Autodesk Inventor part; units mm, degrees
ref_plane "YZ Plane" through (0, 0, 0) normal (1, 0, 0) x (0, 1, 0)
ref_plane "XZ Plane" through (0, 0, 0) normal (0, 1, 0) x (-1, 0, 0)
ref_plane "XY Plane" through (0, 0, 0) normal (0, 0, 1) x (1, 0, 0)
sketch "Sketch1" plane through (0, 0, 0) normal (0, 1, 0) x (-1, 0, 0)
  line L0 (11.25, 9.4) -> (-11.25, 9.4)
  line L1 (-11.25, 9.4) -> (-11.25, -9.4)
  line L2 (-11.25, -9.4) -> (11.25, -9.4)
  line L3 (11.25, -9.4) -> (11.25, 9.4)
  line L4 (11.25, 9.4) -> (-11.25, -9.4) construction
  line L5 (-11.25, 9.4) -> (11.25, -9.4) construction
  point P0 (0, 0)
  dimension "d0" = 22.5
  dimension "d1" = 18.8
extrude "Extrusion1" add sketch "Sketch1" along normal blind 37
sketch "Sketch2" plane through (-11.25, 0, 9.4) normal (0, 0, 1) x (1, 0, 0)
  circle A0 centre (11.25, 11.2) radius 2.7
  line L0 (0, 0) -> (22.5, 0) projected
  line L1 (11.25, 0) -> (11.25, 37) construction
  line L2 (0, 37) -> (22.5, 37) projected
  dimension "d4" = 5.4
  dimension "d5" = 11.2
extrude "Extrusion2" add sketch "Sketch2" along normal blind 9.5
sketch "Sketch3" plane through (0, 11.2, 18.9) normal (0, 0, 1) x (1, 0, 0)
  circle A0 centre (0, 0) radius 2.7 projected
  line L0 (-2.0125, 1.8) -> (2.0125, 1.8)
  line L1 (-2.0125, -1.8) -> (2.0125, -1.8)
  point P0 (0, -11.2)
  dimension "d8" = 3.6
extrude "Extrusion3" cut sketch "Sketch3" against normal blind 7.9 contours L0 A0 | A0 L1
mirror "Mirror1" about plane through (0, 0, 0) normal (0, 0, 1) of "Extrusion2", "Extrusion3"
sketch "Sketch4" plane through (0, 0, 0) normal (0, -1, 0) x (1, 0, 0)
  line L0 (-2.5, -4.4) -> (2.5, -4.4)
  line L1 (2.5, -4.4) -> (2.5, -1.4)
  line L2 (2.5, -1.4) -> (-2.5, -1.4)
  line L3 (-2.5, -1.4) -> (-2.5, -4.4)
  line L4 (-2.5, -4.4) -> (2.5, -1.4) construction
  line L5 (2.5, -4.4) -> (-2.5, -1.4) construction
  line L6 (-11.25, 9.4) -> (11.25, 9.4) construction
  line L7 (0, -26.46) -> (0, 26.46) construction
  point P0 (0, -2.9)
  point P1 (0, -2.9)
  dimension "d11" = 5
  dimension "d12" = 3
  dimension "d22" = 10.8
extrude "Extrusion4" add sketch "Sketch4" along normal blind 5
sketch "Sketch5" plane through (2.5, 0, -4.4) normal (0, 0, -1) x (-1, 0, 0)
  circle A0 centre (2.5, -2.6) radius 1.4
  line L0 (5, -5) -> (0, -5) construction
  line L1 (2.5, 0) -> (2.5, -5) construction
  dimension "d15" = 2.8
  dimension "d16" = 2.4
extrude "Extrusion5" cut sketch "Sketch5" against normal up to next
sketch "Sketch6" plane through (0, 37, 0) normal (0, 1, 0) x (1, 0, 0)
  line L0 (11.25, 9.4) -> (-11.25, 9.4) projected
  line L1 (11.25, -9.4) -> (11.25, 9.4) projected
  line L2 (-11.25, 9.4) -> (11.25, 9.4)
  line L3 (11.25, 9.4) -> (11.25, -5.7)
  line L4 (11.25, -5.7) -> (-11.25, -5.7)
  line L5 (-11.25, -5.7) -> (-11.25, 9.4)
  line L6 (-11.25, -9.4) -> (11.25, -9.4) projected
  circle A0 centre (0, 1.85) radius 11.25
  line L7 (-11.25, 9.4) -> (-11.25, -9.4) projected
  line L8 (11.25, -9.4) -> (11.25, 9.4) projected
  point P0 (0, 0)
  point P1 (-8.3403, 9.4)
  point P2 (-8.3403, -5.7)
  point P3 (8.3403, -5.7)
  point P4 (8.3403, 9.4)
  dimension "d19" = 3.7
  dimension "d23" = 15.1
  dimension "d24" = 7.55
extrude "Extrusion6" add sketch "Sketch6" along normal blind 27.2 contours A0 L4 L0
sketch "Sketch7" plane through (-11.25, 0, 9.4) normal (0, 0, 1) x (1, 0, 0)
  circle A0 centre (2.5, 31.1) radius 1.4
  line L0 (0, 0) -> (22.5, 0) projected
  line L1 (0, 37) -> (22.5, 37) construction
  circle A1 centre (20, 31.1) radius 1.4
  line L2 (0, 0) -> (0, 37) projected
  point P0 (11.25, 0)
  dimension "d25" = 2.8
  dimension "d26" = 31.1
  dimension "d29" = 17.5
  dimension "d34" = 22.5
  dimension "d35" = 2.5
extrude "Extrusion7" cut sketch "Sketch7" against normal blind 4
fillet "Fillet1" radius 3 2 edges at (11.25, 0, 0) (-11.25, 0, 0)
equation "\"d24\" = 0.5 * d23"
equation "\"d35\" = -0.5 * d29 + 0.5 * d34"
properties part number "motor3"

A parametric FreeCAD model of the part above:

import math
import FreeCAD as App
import Part
import Sketcher

V = App.Vector


def edges_at(feature, points):
    """Names of the edges that pass closest to the given points."""
    edges = feature.Shape.Edges
    near = lambda p: min(range(len(edges)), key=lambda i: edges[i].distToShape(Part.Vertex(*p))[0])
    return sorted({f"Edge{near(p) + 1}" for p in points})

doc = App.newDocument("Part")
body = doc.addObject("PartDesign::Body", "Body")

# Sketch on XZ plane
sketch1 = doc.addObject("Sketcher::SketchObject", "Sketch")
body.addObject(sketch1)
sketch1.AttachmentSupport = (doc.XZ_Plane, [""])
sketch1.MapMode = "FlatFace"
sketch1.addGeometry([
    Part.LineSegment(V(-11, -9, 0), V(-11, 9, 0)),
    Part.LineSegment(V(-11, 9, 0), V(11, 9, 0)),
    Part.LineSegment(V(11, 9, 0), V(11, -9, 0)),
    Part.LineSegment(V(11, -9, 0), V(-11, -9, 0)),
], False)
sketch1.addConstraint([
    Sketcher.Constraint("Coincident", 0, 2, 1, 1),
    Sketcher.Constraint("Coincident", 1, 2, 2, 1),
    Sketcher.Constraint("Coincident", 2, 2, 3, 1),
    Sketcher.Constraint("Coincident", 3, 2, 0, 1),
    Sketcher.Constraint("Vertical", 0),
    Sketcher.Constraint("Horizontal", 1),
    Sketcher.Constraint("Vertical", 2),
    Sketcher.Constraint("Horizontal", 3),
    Sketcher.Constraint("Symmetric", 0, 2, 2, 2, -1, 1),
    Sketcher.Constraint("DistanceX", 1, 1, 1, 2, 22.5),
    Sketcher.Constraint("DistanceY", 0, 1, 0, 2, 18.8),
])
pad1 = doc.addObject("PartDesign::Pad", "Pad")
body.addObject(pad1)
pad1.Profile = sketch1
pad1.Length = 37
pad1.Reversed = True

# Sketch on XY plane
sketch2 = doc.addObject("Sketcher::SketchObject", "Sketch001")
body.addObject(sketch2)
sketch2.AttachmentSupport = (doc.XY_Plane, [""])
sketch2.MapMode = "FlatFace"
sketch2.AttachmentOffset = App.Placement(V(0, 0, 9.4), App.Rotation())
sketch2.addGeometry(Part.Circle(V(0, 11.2, 0), V(0, 0, 1), 2.7), False)
sketch2.addConstraint([
    Sketcher.Constraint("PointOnObject", 0, 3, -2),
    Sketcher.Constraint("Diameter", 0, 5.4),
    Sketcher.Constraint("DistanceY", -1, 1, 0, 3, 11.2),
])
pad2 = doc.addObject("PartDesign::Pad", "Pad001")
body.addObject(pad2)
pad2.Profile = sketch2
pad2.Length = 9.5

# Sketch on XY plane
sketch3 = doc.addObject("Sketcher::SketchObject", "Sketch002")
body.addObject(sketch3)
sketch3.AttachmentSupport = (doc.XY_Plane, [""])
sketch3.MapMode = "FlatFace"
sketch3.AttachmentOffset = App.Placement(V(0, 0, 18.9), App.Rotation())
sketch3.addGeometry([
    Part.LineSegment(V(-2, 13, 0), V(2, 13, 0)),
    Part.ArcOfCircle(Part.Circle(V(0, 11.2, 0), V(0, 0, 1), 2.7), math.radians(42), math.radians(138)),
    Part.ArcOfCircle(Part.Circle(V(0, 11.2, 0), V(0, 0, 1), 2.7), math.radians(-138), math.radians(-42)),
    Part.LineSegment(V(-2, 9.4, 0), V(2, 9.4, 0)),
], False)
sketch3.addConstraint([
    Sketcher.Constraint("Coincident", 0, 1, 1, 2),
    Sketcher.Constraint("Coincident", 1, 1, 0, 2),
    Sketcher.Constraint("Coincident", 2, 1, 3, 1),
    Sketcher.Constraint("Coincident", 3, 2, 2, 2),
    Sketcher.Constraint("Horizontal", 0),
    Sketcher.Constraint("Horizontal", 3),
    Sketcher.Constraint("Coincident", 2, 3, 1, 3),
    Sketcher.Constraint("Equal", 1, 2),
    Sketcher.Constraint("PointOnObject", 1, 3, -2),
    Sketcher.Constraint("Vertical", 0, 1, 2, 1),
    Sketcher.Constraint("Radius", 1, 2.7),
    Sketcher.Constraint("DistanceY", 2, 1, 0, 1, 3.6),
    Sketcher.Constraint("DistanceY", -1, 1, 0, 1, 13.0),
])
pocket1 = doc.addObject("PartDesign::Pocket", "Pocket")
body.addObject(pocket1)
pocket1.Profile = sketch3
pocket1.Length = 7.9
doc.recompute()

mirrored = doc.addObject("PartDesign::Mirrored", "Mirrored")
body.addObject(mirrored)
mirrored.Originals = [pad2, pocket1]
mirrored.MirrorPlane = (doc.XY_Plane, [""])
body.Tip = mirrored

# Sketch on XZ plane
sketch4 = doc.addObject("Sketcher::SketchObject", "Sketch003")
body.addObject(sketch4)
sketch4.AttachmentSupport = (doc.XZ_Plane, [""])
sketch4.MapMode = "FlatFace"
sketch4.addGeometry([
    Part.LineSegment(V(-2.5, -1.4, 0), V(-2.5, -4.4, 0)),
    Part.LineSegment(V(-2.5, -4.4, 0), V(2.5, -4.4, 0)),
    Part.LineSegment(V(2.5, -4.4, 0), V(2.5, -1.4, 0)),
    Part.LineSegment(V(2.5, -1.4, 0), V(-2.5, -1.4, 0)),
], False)
sketch4.addConstraint([
    Sketcher.Constraint("Coincident", 0, 2, 1, 1),
    Sketcher.Constraint("Coincident", 1, 2, 2, 1),
    Sketcher.Constraint("Coincident", 2, 2, 3, 1),
    Sketcher.Constraint("Coincident", 3, 2, 0, 1),
    Sketcher.Constraint("Vertical", 0),
    Sketcher.Constraint("Horizontal", 1),
    Sketcher.Constraint("Vertical", 2),
    Sketcher.Constraint("Horizontal", 3),
    Sketcher.Constraint("DistanceX", 1, 1, 1, 2, 5.0),
    Sketcher.Constraint("DistanceY", 0, 2, 0, 1, 3.0),
    Sketcher.Constraint("DistanceX", 0, 2, -1, 1, 2.5),
    Sketcher.Constraint("DistanceY", 0, 2, -1, 1, 4.4),
])
pad3 = doc.addObject("PartDesign::Pad", "Pad002")
body.addObject(pad3)
pad3.Profile = sketch4
pad3.Length = 5

# Sketch on XY plane
sketch5 = doc.addObject("Sketcher::SketchObject", "Sketch004")
body.addObject(sketch5)
sketch5.AttachmentSupport = (doc.XY_Plane, [""])
sketch5.MapMode = "FlatFace"
sketch5.AttachmentOffset = App.Placement(V(0, 0, -4.4), App.Rotation())
sketch5.addGeometry(Part.Circle(V(0, -2.6, 0), V(0, 0, 1), 1.4), False)
sketch5.addConstraint([
    Sketcher.Constraint("PointOnObject", 0, 3, -2),
    Sketcher.Constraint("Diameter", 0, 2.8),
    Sketcher.Constraint("DistanceY", 0, 3, -1, 1, 2.6),
])
pocket2 = doc.addObject("PartDesign::Pocket", "Pocket001")
body.addObject(pocket2)
pocket2.Profile = sketch5
pocket2.Type = "UpToFirst"
pocket2.Reversed = True

# Sketch on XZ plane
sketch6 = doc.addObject("Sketcher::SketchObject", "Sketch005")
body.addObject(sketch6)
sketch6.AttachmentSupport = (doc.XZ_Plane, [""])
sketch6.MapMode = "FlatFace"
sketch6.AttachmentOffset = App.Placement(V(0, 0, -37), App.Rotation())
sketch6.addGeometry([
    Part.ArcOfCircle(Part.Circle(V(0, -2, 0), V(0, 0, 1), 11), math.radians(-42), math.radians(42)),
    Part.LineSegment(V(8, -9, 0), V(-8, -9, 0)),
    Part.ArcOfCircle(Part.Circle(V(0, -2, 0), V(0, 0, 1), 11), math.radians(138), math.radians(222)),
    Part.LineSegment(V(-8, 6, 0), V(8, 6, 0)),
], False)
sketch6.addConstraint([
    Sketcher.Constraint("Coincident", 0, 1, 1, 1),
    Sketcher.Constraint("Coincident", 1, 2, 2, 2),
    Sketcher.Constraint("Coincident", 2, 1, 3, 1),
    Sketcher.Constraint("Coincident", 3, 2, 0, 2),
    Sketcher.Constraint("Horizontal", 1),
    Sketcher.Constraint("Horizontal", 3),
    Sketcher.Constraint("Coincident", 2, 3, 0, 3),
    Sketcher.Constraint("Equal", 0, 2),
    Sketcher.Constraint("PointOnObject", 0, 3, -2),
    Sketcher.Constraint("Vertical", 1, 2, 2, 1),
    Sketcher.Constraint("DistanceY", 1, 2, 2, 1, 15.1),
    Sketcher.Constraint("Radius", 0, 11.25),
    Sketcher.Constraint("DistanceY", 0, 1, -1, 1, 9.4),
])
pad4 = doc.addObject("PartDesign::Pad", "Pad003")
body.addObject(pad4)
pad4.Profile = sketch6
pad4.Length = 27.2
pad4.Reversed = True

# Sketch on XY plane
sketch7 = doc.addObject("Sketcher::SketchObject", "Sketch006")
body.addObject(sketch7)
sketch7.AttachmentSupport = (doc.XY_Plane, [""])
sketch7.MapMode = "FlatFace"
sketch7.AttachmentOffset = App.Placement(V(0, 0, 9.4), App.Rotation())
sketch7.addGeometry([
    Part.Circle(V(-8.8, 31.1, 0), V(0, 0, 1), 1.4),
    Part.Circle(V(8.8, 31.1, 0), V(0, 0, 1), 1.4),
], False)
sketch7.addConstraint([
    Sketcher.Constraint("Equal", 0, 1),
    Sketcher.Constraint("Symmetric", 0, 3, 1, 3, -2),
    Sketcher.Constraint("Diameter", 0, 2.8),
    Sketcher.Constraint("DistanceY", -1, 1, 0, 3, 31.1),
    Sketcher.Constraint("DistanceX", 0, 3, 1, 3, 17.5),
])
pocket3 = doc.addObject("PartDesign::Pocket", "Pocket002")
body.addObject(pocket3)
pocket3.Profile = sketch7
pocket3.Length = 4
doc.recompute()

fillet = doc.addObject("PartDesign::Fillet", "Fillet")
body.addObject(fillet)
fillet.Base = (pocket3, edges_at(pocket3, [(11.25, 0, 0), (-11.25, 0, 0)]))
fillet.Radius = 3

doc.recompute()
